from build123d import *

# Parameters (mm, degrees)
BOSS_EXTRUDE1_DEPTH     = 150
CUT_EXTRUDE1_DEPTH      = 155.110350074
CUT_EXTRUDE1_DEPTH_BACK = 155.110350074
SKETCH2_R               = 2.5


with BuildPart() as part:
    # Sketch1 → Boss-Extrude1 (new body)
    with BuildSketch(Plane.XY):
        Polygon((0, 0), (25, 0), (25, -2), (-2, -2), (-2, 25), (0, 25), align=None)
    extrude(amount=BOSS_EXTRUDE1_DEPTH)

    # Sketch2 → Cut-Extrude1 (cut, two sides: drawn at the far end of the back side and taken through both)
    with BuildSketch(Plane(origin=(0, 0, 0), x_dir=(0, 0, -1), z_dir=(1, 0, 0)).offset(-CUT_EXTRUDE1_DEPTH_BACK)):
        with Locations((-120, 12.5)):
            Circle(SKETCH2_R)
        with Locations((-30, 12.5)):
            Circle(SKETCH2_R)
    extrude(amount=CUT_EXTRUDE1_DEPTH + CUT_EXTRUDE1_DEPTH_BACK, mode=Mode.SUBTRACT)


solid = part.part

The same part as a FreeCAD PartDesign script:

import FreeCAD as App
import Part
import Sketcher
from FreeCAD import Vector
Q = App.Units.Quantity


def add_polygon(sketch, points):
    """Adds a closed chain of lines whose ends are joined by coincident constraints."""
    first, n = sketch.GeometryCount, len(points)
    for a, b in zip(points, points[1:] + points[:1]):
        sketch.addGeometry(Part.LineSegment(App.Vector(*a, 0), App.Vector(*b, 0)), False)
    for i in range(n):
        sketch.addConstraint(Sketcher.Constraint("Coincident", first + i, 2, first + (i + 1) % n, 1))

doc = App.newDocument("Part")
body = doc.addObject("PartDesign::Body", "Body")

# Sketch on XY plane
sketch1 = doc.addObject("Sketcher::SketchObject", "Sketch")
body.addObject(sketch1)
sketch1.AttachmentSupport = (doc.XY_Plane, [""])
sketch1.MapMode = "FlatFace"
add_polygon(sketch1, [(25, 0), (0, 0), (0, 25), (-2, 25), (-2, -2), (25, -2)])  # lines 0-5
sketch1.addConstraint(Sketcher.Constraint("Horizontal", 0))
sketch1.addConstraint(Sketcher.Constraint("Vertical", 1))
sketch1.addConstraint(Sketcher.Constraint("Horizontal", 2))
sketch1.addConstraint(Sketcher.Constraint("Vertical", 3))
sketch1.addConstraint(Sketcher.Constraint("Horizontal", 4))
sketch1.addConstraint(Sketcher.Constraint("Vertical", 5))
sketch1.addConstraint(Sketcher.Constraint("Coincident", 0, 2, -1, 1))
sketch1.addConstraint(Sketcher.Constraint("Equal", 0, 1))
sketch1.addConstraint(Sketcher.Constraint("Equal", 4, 3))
sketch1.addConstraint(Sketcher.Constraint("DistanceX", 0, 2, 0, 1, Q("25 mm")))
sketch1.addConstraint(Sketcher.Constraint("DistanceX", 2, 2, 2, 1, Q("2 mm")))
pad1 = doc.addObject("PartDesign::Pad", "Pad")
body.addObject(pad1)
pad1.Profile = sketch1
pad1.Length = 150

# Sketch on YZ plane
sketch2 = doc.addObject("Sketcher::SketchObject", "Sketch001")
body.addObject(sketch2)
sketch2.AttachmentSupport = (doc.YZ_Plane, [""])
sketch2.MapMode = "FlatFace"
sketch2.addGeometry(Part.Circle(Vector(12.5, 120, 0), Vector(0, 0, 1), 2.5), False)
sketch2.addGeometry(Part.Circle(Vector(12.5, 30, 0), Vector(0, 0, 1), 2.5), False)
sketch2.addConstraint(Sketcher.Constraint("Equal", 0, 1))
sketch2.addConstraint(Sketcher.Constraint("Vertical", 0, 3, 1, 3))
sketch2.addConstraint(Sketcher.Constraint("Diameter", 0, Q("5 mm")))
sketch2.addConstraint(Sketcher.Constraint("DistanceY", -1, 1, 0, 3, Q("120 mm")))
sketch2.addConstraint(Sketcher.Constraint("DistanceY", -1, 1, 1, 3, Q("30 mm")))
sketch2.addConstraint(Sketcher.Constraint("DistanceX", -1, 1, 0, 3, Q("12.5 mm")))
pocket1 = doc.addObject("PartDesign::Pocket", "Pocket")
body.addObject(pocket1)
pocket1.Profile = sketch2
pocket1.Type = "ThroughAll"
pocket1.Midplane = True

doc.recompute()
